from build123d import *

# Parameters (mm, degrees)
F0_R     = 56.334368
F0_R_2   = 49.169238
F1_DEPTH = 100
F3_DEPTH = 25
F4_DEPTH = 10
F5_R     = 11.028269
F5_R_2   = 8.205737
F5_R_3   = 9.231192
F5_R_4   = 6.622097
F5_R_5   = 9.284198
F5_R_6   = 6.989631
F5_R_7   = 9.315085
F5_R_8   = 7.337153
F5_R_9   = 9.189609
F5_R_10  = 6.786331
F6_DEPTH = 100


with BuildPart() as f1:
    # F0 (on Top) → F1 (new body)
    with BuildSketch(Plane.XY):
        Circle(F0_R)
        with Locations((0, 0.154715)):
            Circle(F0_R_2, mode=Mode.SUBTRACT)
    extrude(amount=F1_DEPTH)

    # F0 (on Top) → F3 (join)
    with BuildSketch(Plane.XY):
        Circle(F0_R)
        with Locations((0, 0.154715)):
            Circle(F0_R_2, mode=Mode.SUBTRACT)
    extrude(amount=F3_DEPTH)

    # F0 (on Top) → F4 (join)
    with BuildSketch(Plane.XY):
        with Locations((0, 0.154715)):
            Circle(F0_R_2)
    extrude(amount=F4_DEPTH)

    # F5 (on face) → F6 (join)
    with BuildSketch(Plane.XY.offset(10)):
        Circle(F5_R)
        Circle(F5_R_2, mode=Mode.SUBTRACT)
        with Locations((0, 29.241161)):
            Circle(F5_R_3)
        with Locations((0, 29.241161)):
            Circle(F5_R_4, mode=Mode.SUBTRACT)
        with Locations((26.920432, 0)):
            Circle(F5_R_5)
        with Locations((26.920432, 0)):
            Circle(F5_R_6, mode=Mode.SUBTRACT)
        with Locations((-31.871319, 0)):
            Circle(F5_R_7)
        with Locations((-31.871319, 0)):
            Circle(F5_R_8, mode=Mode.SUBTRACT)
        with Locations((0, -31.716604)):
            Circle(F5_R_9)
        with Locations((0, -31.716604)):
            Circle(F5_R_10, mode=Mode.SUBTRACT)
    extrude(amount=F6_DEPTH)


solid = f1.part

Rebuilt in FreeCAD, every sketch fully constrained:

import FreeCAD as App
import Part
import Sketcher

doc = App.newDocument("Part")
params = doc.addObject("Spreadsheet::Sheet", "Params")
for row, (alias, value) in enumerate([
    ("pad1_length", "100 mm"),
    ("pad2_length", "25 mm"),
    ("pad3_length", "10 mm"),
    ("pad4_length", "100 mm"),
], start=1):
    params.set(f"A{row}", alias)
    params.set(f"B{row}", "=" + value)
    params.setAlias(f"B{row}", alias)

body = doc.addObject("PartDesign::Body", "Body")

# Sketch on XY plane
sketch1 = body.newObject("Sketcher::SketchObject", "Sketch")
sketch1.AttachmentSupport = (doc.getObject("XY_Plane"), [""])
sketch1.MapMode = "FlatFace"
sketch1.addGeometry(Part.Circle(App.Vector(0, 0, 0), App.Vector(0, 0, 1), 56), False)
sketch1.addGeometry(Part.Circle(App.Vector(0, 0, 0), App.Vector(0, 0, 1), 49), False)
sketch1.addConstraint(Sketcher.Constraint("Coincident", 0, 3, -1, 1))
sketch1.addConstraint(Sketcher.Constraint("PointOnObject", 1, 3, -2))
sketch1.addConstraint(Sketcher.Constraint("Diameter", 0, 112.668736))
sketch1.addConstraint(Sketcher.Constraint("Diameter", 1, 98.338476))
sketch1.addConstraint(Sketcher.Constraint("DistanceY", -1, 1, 1, 3, 0.154715))
pad1 = body.newObject("PartDesign::Pad", "Pad")
pad1.Profile = sketch1
pad1.setExpression("Length", "Params.pad1_length")

# Sketch on XY plane
sketch2 = body.newObject("Sketcher::SketchObject", "Sketch001")
sketch2.AttachmentSupport = (doc.getObject("XY_Plane"), [""])
sketch2.MapMode = "FlatFace"
sketch2.addGeometry(Part.Circle(App.Vector(0, 0, 0), App.Vector(0, 0, 1), 56), False)
sketch2.addGeometry(Part.Circle(App.Vector(0, 0, 0), App.Vector(0, 0, 1), 49), False)
sketch2.addConstraint(Sketcher.Constraint("Coincident", 0, 3, -1, 1))
sketch2.addConstraint(Sketcher.Constraint("PointOnObject", 1, 3, -2))
sketch2.addConstraint(Sketcher.Constraint("Diameter", 0, 112.668736))
sketch2.addConstraint(Sketcher.Constraint("Diameter", 1, 98.338476))
sketch2.addConstraint(Sketcher.Constraint("DistanceY", -1, 1, 1, 3, 0.154715))
pad2 = body.newObject("PartDesign::Pad", "Pad001")
pad2.Profile = sketch2
pad2.setExpression("Length", "Params.pad2_length")

# Sketch on XY plane
sketch3 = body.newObject("Sketcher::SketchObject", "Sketch002")
sketch3.AttachmentSupport = (doc.getObject("XY_Plane"), [""])
sketch3.MapMode = "FlatFace"
sketch3.addGeometry(Part.Circle(App.Vector(0, 0, 0), App.Vector(0, 0, 1), 49), False)
sketch3.addConstraint(Sketcher.Constraint("PointOnObject", 0, 3, -2))
sketch3.addConstraint(Sketcher.Constraint("Diameter", 0, 98.338476))
sketch3.addConstraint(Sketcher.Constraint("DistanceY", -1, 1, 0, 3, 0.154715))
pad3 = body.newObject("PartDesign::Pad", "Pad002")
pad3.Profile = sketch3
pad3.setExpression("Length", "Params.pad3_length")

# Sketch on XY plane
sketch4 = body.newObject("Sketcher::SketchObject", "Sketch003")
sketch4.AttachmentSupport = (doc.getObject("XY_Plane"), [""])
sketch4.MapMode = "FlatFace"
sketch4.AttachmentOffset = App.Placement(App.Vector(0, 0, 10), App.Rotation())
sketch4.addGeometry(Part.Circle(App.Vector(0, 0, 0), App.Vector(0, 0, 1), 11), False)
sketch4.addGeometry(Part.Circle(App.Vector(0, 0, 0), App.Vector(0, 0, 1), 8), False)
sketch4.addGeometry(Part.Circle(App.Vector(0, 29, 0), App.Vector(0, 0, 1), 9), False)
sketch4.addGeometry(Part.Circle(App.Vector(0, 29, 0), App.Vector(0, 0, 1), 7), False)
sketch4.addGeometry(Part.Circle(App.Vector(27, 0, 0), App.Vector(0, 0, 1), 9), False)
sketch4.addGeometry(Part.Circle(App.Vector(27, 0, 0), App.Vector(0, 0, 1), 7), False)
sketch4.addGeometry(Part.Circle(App.Vector(-32, 0, 0), App.Vector(0, 0, 1), 9), False)
sketch4.addGeometry(Part.Circle(App.Vector(-32, 0, 0), App.Vector(0, 0, 1), 7), False)
sketch4.addGeometry(Part.Circle(App.Vector(0, -32, 0), App.Vector(0, 0, 1), 9), False)
sketch4.addGeometry(Part.Circle(App.Vector(0, -32, 0), App.Vector(0, 0, 1), 7), False)
sketch4.addConstraint(Sketcher.Constraint("Coincident", 0, 3, -1, 1))
sketch4.addConstraint(Sketcher.Constraint("Coincident", 1, 3, -1, 1))
sketch4.addConstraint(Sketcher.Constraint("Coincident", 3, 3, 2, 3))
sketch4.addConstraint(Sketcher.Constraint("Coincident", 5, 3, 4, 3))
sketch4.addConstraint(Sketcher.Constraint("Coincident", 7, 3, 6, 3))
sketch4.addConstraint(Sketcher.Constraint("Coincident", 9, 3, 8, 3))
sketch4.addConstraint(Sketcher.Constraint("PointOnObject", 2, 3, -2))
sketch4.addConstraint(Sketcher.Constraint("PointOnObject", 4, 3, -1))
sketch4.addConstraint(Sketcher.Constraint("PointOnObject", 6, 3, -1))
sketch4.addConstraint(Sketcher.Constraint("PointOnObject", 8, 3, -2))
sketch4.addConstraint(Sketcher.Constraint("Diameter", 0, 22.056538))
sketch4.addConstraint(Sketcher.Constraint("Diameter", 6, 18.63017))
sketch4.addConstraint(Sketcher.Constraint("Diameter", 8, 18.379218))
sketch4.addConstraint(Sketcher.Constraint("Diameter", 9, 13.572662))
sketch4.addConstraint(Sketcher.Constraint("Diameter", 1, 16.411474))
sketch4.addConstraint(Sketcher.Constraint("Diameter", 2, 18.462384))
sketch4.addConstraint(Sketcher.Constraint("Diameter", 3, 13.244194))
sketch4.addConstraint(Sketcher.Constraint("Diameter", 4, 18.568396))
sketch4.addConstraint(Sketcher.Constraint("Diameter", 5, 13.979262))
sketch4.addConstraint(Sketcher.Constraint("Diameter", 7, 14.674306))
sketch4.addConstraint(Sketcher.Constraint("DistanceY", -1, 1, 2, 3, 29.241161))
sketch4.addConstraint(Sketcher.Constraint("DistanceX", 6, 3, -1, 1, 31.871319))
sketch4.addConstraint(Sketcher.Constraint("DistanceX", 6, 3, 4, 3, 58.791751))
sketch4.addConstraint(Sketcher.Constraint("DistanceY", 8, 3, -1, 1, 31.716604))
pad4 = body.newObject("PartDesign::Pad", "Pad003")
pad4.Profile = sketch4
pad4.setExpression("Length", "Params.pad4_length")

doc.recompute()
